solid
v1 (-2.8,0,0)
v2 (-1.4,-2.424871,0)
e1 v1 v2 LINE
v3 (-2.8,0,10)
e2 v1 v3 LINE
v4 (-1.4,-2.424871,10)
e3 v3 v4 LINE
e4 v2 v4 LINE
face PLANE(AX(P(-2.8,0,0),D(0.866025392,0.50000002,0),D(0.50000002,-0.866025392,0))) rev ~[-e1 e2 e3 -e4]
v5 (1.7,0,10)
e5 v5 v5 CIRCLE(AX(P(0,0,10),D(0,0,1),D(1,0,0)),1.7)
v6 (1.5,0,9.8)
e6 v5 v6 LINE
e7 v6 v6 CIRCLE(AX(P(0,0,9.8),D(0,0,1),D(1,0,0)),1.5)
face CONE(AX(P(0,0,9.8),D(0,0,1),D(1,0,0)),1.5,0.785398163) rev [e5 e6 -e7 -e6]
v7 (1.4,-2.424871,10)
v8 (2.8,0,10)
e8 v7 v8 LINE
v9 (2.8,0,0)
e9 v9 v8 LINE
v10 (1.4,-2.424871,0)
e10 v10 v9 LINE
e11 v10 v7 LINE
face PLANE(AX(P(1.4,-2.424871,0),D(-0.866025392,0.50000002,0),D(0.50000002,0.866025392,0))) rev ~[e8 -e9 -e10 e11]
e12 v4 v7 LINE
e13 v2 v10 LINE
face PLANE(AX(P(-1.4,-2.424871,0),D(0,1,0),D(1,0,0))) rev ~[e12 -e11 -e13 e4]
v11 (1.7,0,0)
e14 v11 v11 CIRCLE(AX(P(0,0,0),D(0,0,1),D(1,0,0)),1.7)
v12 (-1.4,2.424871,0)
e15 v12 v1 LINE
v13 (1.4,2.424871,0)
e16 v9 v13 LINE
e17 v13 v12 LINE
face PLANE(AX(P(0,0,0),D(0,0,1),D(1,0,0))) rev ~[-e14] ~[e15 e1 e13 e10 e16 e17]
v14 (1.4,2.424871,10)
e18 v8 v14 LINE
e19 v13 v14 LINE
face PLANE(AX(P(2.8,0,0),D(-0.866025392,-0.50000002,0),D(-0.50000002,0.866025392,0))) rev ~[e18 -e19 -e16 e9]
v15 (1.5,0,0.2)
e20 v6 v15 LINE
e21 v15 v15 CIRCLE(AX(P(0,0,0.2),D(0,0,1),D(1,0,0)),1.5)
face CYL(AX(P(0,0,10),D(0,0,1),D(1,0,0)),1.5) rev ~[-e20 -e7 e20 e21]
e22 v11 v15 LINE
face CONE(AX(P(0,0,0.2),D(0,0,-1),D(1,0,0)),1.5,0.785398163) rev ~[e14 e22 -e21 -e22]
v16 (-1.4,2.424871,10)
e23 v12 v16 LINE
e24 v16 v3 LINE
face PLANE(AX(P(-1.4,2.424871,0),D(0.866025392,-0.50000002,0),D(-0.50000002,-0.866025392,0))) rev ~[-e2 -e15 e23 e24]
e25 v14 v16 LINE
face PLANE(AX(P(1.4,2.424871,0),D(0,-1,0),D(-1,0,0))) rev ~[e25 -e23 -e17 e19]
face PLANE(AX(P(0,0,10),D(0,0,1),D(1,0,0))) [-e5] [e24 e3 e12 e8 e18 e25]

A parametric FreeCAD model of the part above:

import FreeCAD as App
import Part
import Sketcher
Q = App.Units.Quantity


def edges_at(feature, points):
    """Names of the edges that pass closest to the given points."""
    edges = feature.Shape.Edges
    near = lambda p: min(range(len(edges)), key=lambda i: edges[i].distToShape(Part.Vertex(*p))[0])
    return sorted({f"Edge{near(p) + 1}" for p in points})


def add_polygon(sketch, points):
    """Adds a closed chain of lines whose ends are joined by coincident constraints."""
    first, n = sketch.GeometryCount, len(points)
    for a, b in zip(points, points[1:] + points[:1]):
        sketch.addGeometry(Part.LineSegment(App.Vector(*a, 0), App.Vector(*b, 0)), False)
    for i in range(n):
        sketch.addConstraint(Sketcher.Constraint("Coincident", first + i, 2, first + (i + 1) % n, 1))

doc = App.newDocument("Part")
body = doc.addObject("PartDesign::Body", "Body")

# Sketch on XY plane
sketch1 = body.newObject("Sketcher::SketchObject", "Sketch")
sketch1.AttachmentSupport = (doc.getObject("XY_Plane"), [""])
sketch1.MapMode = "FlatFace"
add_polygon(sketch1, [(2.8, 0), (1.4, 2.4), (-1.4, 2.4), (-2.8, 0), (-1.4, -2.4), (1.4, -2.4)])  # lines 0-5
sketch1.addConstraint([
    Sketcher.Constraint("Horizontal", 1),
    Sketcher.Constraint("Horizontal", 4),
    Sketcher.Constraint("Symmetric", 0, 2, 3, 2, -1, 1),
    Sketcher.Constraint("Symmetric", 2, 2, 5, 2, -1, 1),
    Sketcher.Constraint("PointOnObject", 2, 2, -1),
    Sketcher.Constraint("Parallel", 2, 5),
    Sketcher.Constraint("Vertical", 1, 2, 3, 2),
    Sketcher.Constraint("Angle", 0, Q("120.000001 deg")),
    Sketcher.Constraint("DistanceX", 1, 2, 1, 1, Q("2.8 mm")),
    Sketcher.Constraint("Distance", 0, Q("2.8 mm")),
])
pad1 = body.newObject("PartDesign::Pad", "Pad")
pad1.Profile = sketch1
pad1.Length = 10

# Sketch on XY plane
sketch2 = body.newObject("Sketcher::SketchObject", "Sketch001")
sketch2.AttachmentSupport = (doc.getObject("XY_Plane"), [""])
sketch2.MapMode = "FlatFace"
sketch2.AttachmentOffset = App.Placement(App.Vector(0, 0, 10), App.Rotation())
sketch2.addGeometry(Part.Circle(App.Vector(0, 0, 0), App.Vector(0, 0, 1), 1.5), False)
sketch2.addConstraint([
    Sketcher.Constraint("Coincident", 0, 3, -1, 1),
    Sketcher.Constraint("Diameter", 0, Q("3 mm")),
])
pocket1 = body.newObject("PartDesign::Pocket", "Pocket")
pocket1.Profile = sketch2
pocket1.Type = "ThroughAll"
doc.recompute()

chamfer = body.newObject("PartDesign::Chamfer", "Chamfer")
chamfer.Base = (pocket1, edges_at(pocket1, [(-1.5, 0, 10), (-1.5, 0, 0)]))
chamfer.Size = 0.2

doc.recompute()
